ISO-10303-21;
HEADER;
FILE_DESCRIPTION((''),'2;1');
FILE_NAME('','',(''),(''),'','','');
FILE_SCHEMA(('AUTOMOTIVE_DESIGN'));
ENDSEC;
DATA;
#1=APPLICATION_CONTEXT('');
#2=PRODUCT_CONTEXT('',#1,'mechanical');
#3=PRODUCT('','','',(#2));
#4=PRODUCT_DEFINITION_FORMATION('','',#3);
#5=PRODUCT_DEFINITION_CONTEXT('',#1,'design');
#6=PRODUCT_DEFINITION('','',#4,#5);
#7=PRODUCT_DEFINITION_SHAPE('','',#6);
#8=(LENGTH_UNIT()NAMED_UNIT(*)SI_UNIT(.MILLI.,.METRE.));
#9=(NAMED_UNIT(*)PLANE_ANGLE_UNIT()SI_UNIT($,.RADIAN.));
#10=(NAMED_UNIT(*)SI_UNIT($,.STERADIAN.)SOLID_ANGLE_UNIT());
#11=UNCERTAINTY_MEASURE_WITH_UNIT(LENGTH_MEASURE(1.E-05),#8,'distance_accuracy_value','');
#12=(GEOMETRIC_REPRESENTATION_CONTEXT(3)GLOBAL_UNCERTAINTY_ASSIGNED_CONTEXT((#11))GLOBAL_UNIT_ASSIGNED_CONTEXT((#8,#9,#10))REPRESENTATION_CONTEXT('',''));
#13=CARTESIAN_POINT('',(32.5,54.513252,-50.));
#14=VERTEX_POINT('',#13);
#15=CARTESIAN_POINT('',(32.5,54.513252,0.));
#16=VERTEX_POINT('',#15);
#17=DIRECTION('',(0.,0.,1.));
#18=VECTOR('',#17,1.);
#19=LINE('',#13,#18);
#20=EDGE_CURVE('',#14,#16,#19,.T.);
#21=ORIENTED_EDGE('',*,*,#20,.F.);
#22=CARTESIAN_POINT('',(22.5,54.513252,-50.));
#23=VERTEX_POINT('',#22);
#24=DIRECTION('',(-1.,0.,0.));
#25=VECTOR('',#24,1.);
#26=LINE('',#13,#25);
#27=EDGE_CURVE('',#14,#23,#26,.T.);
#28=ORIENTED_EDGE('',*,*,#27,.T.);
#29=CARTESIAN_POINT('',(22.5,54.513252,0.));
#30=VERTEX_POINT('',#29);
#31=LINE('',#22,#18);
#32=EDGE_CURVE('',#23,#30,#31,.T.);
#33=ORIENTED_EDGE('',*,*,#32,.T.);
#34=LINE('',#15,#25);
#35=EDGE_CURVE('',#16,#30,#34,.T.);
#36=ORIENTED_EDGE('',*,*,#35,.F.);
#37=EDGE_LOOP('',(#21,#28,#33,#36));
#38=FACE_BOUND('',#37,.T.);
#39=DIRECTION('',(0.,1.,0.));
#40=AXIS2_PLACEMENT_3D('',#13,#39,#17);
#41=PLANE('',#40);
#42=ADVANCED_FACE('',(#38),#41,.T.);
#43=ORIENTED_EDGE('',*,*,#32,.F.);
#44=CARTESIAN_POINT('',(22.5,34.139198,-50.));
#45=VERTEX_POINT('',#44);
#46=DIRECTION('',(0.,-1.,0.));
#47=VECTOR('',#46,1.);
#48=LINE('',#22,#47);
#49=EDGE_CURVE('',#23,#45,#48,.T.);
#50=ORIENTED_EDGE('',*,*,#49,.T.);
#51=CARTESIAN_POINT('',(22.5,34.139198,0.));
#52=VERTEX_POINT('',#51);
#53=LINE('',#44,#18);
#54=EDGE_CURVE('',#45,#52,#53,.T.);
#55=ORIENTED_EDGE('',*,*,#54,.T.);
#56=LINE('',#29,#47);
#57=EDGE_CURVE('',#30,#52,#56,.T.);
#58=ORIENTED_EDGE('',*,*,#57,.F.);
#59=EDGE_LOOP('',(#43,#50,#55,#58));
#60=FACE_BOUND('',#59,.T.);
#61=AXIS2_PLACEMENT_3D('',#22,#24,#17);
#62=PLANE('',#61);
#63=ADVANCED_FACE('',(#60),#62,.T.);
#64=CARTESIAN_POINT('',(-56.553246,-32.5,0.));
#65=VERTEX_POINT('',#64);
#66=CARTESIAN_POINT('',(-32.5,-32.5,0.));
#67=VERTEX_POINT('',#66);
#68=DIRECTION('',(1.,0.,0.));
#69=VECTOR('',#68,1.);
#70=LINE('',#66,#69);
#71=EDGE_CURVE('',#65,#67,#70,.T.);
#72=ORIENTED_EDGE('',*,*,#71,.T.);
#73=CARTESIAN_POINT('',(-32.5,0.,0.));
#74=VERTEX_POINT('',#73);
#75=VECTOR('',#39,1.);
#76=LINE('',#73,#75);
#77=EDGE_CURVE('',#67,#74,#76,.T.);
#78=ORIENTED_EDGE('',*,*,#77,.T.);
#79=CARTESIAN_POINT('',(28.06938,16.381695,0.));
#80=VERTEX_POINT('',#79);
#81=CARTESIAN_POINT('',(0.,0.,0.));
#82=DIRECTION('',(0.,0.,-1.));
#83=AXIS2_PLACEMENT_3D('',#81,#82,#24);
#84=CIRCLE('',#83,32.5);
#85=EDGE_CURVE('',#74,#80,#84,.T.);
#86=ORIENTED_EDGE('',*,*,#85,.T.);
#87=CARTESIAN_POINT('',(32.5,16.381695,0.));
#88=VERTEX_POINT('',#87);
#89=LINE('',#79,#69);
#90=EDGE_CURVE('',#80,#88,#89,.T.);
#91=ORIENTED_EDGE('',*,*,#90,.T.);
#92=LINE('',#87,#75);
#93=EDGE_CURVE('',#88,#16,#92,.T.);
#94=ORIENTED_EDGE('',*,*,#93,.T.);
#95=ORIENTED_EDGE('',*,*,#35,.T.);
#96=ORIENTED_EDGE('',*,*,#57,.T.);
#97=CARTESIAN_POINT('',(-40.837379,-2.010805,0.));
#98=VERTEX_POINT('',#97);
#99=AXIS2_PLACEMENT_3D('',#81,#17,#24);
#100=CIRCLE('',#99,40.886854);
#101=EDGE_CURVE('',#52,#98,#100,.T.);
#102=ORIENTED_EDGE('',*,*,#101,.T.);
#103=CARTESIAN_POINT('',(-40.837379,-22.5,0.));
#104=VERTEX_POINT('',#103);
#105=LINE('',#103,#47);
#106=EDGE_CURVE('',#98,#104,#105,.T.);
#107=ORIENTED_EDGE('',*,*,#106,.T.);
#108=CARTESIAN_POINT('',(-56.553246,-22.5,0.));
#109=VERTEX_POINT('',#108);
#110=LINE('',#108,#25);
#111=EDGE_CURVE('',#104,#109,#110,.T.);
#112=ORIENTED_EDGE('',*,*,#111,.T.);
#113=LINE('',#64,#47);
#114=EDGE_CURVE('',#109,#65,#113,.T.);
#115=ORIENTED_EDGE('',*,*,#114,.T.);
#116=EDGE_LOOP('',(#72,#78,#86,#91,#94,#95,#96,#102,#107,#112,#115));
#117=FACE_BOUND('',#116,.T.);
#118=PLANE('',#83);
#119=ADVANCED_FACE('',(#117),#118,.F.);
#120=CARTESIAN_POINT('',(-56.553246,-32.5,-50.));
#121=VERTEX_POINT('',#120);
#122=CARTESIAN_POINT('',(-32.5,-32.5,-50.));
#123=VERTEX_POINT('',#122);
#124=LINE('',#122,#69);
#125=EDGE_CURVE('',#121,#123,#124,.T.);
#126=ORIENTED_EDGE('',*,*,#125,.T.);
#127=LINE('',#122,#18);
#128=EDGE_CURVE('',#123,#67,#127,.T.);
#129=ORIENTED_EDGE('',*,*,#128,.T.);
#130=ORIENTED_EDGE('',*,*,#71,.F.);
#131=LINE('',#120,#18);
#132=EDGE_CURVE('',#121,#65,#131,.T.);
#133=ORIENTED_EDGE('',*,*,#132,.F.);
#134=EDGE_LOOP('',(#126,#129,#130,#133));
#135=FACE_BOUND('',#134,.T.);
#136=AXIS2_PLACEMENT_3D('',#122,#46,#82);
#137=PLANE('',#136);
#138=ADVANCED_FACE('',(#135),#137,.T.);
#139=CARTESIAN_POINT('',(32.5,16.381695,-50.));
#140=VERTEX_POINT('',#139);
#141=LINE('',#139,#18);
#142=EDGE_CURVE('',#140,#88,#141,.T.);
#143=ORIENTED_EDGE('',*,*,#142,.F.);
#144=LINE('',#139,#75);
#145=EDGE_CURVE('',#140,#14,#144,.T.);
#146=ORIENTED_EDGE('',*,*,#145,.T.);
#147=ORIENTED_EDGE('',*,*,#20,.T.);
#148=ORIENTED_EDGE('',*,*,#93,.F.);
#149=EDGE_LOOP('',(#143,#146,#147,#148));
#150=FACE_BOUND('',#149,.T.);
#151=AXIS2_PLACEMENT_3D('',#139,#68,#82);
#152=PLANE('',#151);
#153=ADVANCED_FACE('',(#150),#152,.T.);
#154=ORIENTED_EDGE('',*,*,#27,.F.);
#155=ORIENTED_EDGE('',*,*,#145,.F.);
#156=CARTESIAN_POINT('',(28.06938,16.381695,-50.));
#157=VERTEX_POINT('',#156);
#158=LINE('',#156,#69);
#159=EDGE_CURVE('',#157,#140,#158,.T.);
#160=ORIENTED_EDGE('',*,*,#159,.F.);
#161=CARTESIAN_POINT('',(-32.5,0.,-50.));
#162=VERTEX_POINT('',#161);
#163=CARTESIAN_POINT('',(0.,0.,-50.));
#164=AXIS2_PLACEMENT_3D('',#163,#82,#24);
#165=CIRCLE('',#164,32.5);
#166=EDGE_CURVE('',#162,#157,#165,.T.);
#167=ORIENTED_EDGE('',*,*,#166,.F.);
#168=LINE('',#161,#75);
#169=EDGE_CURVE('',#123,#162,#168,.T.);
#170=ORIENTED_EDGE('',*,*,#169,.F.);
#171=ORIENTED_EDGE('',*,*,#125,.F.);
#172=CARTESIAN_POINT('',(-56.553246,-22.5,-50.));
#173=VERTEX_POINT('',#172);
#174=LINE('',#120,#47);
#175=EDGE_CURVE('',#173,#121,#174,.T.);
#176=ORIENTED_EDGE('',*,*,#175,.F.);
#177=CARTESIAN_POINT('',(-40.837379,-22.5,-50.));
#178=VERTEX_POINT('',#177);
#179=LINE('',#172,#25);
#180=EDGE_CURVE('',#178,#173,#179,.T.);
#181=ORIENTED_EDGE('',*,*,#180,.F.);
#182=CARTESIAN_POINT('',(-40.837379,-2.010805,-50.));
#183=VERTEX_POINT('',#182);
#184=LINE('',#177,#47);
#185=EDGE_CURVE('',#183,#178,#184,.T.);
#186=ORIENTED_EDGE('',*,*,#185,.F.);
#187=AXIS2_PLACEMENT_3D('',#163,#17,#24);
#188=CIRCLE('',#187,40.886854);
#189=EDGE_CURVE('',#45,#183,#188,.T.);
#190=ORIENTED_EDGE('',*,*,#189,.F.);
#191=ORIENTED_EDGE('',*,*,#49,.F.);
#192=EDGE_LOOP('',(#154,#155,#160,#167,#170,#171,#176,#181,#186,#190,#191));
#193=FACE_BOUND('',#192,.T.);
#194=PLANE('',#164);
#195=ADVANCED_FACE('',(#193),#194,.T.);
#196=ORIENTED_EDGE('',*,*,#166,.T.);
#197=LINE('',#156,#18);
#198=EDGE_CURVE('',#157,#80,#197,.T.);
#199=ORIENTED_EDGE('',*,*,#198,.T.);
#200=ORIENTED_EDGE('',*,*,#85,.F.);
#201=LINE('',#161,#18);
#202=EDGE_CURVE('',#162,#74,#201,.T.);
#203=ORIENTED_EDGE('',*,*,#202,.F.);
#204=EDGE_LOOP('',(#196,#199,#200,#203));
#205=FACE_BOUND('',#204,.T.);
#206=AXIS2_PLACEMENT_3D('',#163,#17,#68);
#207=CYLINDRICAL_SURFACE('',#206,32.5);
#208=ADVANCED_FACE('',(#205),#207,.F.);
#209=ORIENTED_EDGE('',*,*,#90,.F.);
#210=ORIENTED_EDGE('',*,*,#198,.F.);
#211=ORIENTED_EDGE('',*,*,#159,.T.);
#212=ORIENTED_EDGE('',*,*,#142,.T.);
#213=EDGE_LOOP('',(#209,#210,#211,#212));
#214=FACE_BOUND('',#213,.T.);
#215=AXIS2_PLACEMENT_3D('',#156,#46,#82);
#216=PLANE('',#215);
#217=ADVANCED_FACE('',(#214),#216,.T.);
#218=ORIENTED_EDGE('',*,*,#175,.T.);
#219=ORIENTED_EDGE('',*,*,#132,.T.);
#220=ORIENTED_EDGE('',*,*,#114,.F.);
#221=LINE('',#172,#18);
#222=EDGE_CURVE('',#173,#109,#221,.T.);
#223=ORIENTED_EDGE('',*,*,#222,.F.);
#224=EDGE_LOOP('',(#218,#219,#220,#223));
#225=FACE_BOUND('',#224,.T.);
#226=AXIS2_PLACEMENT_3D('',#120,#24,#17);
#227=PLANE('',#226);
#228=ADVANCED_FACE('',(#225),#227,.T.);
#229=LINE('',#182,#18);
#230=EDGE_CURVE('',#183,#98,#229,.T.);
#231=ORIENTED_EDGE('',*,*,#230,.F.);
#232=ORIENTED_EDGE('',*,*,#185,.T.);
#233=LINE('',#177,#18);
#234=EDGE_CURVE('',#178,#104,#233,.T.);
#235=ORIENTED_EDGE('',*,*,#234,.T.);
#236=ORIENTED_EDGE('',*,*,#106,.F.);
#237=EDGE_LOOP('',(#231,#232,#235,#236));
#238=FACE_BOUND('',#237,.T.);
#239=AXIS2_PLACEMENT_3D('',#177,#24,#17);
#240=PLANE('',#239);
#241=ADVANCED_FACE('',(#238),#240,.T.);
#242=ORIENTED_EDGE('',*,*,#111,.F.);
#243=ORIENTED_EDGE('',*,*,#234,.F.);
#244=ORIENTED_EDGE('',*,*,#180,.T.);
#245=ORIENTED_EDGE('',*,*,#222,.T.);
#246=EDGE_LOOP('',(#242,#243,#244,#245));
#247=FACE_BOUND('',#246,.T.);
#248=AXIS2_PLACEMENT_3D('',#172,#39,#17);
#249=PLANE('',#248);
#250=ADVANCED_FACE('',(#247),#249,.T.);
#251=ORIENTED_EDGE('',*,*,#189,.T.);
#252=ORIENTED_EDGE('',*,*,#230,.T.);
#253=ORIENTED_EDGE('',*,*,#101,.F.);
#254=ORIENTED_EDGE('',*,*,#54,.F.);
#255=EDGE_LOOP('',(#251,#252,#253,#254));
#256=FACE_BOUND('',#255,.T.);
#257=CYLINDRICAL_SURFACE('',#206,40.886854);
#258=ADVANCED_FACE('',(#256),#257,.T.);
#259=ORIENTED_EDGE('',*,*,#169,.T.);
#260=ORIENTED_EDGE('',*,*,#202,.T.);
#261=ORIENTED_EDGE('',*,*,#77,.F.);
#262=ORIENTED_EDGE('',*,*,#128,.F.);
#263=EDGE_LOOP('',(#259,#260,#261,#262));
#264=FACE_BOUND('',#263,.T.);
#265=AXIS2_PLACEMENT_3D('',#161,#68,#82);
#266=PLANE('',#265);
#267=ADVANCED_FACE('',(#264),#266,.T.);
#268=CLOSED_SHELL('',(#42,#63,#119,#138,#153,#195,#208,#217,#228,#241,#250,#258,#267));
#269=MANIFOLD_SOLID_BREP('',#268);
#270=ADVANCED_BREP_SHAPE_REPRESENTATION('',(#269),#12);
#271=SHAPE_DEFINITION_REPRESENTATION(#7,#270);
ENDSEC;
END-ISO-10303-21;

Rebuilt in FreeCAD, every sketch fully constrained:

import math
import FreeCAD as App
import Part
import Sketcher

V = App.Vector

doc = App.newDocument("Part")
params = doc.addObject("Spreadsheet::Sheet", "Params")
for row, (alias, value) in enumerate([
    ("sketch1_radius", "32.5 mm"),
    ("sketch1_width", "10 mm"),
    ("sketch1_height", "32.5 mm"),
    ("pad1_length", "50 mm"),
], start=1):
    params.set(f"A{row}", alias)
    params.set(f"B{row}", "=" + value)
    params.setAlias(f"B{row}", alias)

body = doc.addObject("PartDesign::Body", "Body")

# Sketch on XY plane
sketch1 = doc.addObject("Sketcher::SketchObject", "Sketch")
body.addObject(sketch1)
sketch1.AttachmentSupport = (doc.XY_Plane, [""])
sketch1.MapMode = "FlatFace"
sketch1.addGeometry(Part.LineSegment(V(-32.5, -32.5, 0), V(-32.5, 0, 0)), False)
sketch1.addGeometry(Part.ArcOfCircle(Part.Circle(V(0, 0, 0), V(0, 0, 1), 32.5), math.radians(30), math.radians(180)), False)
sketch1.addGeometry(Part.LineSegment(V(28.1, 16.4, 0), V(32.5, 16.4, 0)), False)
sketch1.addGeometry(Part.LineSegment(V(32.5, 16.4, 0), V(32.5, 54.5, 0)), False)
sketch1.addGeometry(Part.LineSegment(V(32.5, 54.5, 0), V(22.5, 54.5, 0)), False)
sketch1.addGeometry(Part.LineSegment(V(22.5, 54.5, 0), V(22.5, 34.1, 0)), False)
sketch1.addGeometry(Part.ArcOfCircle(Part.Circle(V(0, 0, 0), V(0, 0, 1), 40.9), math.radians(57), math.radians(183)), False)
sketch1.addGeometry(Part.LineSegment(V(-40.8, -2, 0), V(-40.8, -22.5, 0)), False)
sketch1.addGeometry(Part.LineSegment(V(-40.8, -22.5, 0), V(-56.6, -22.5, 0)), False)
sketch1.addGeometry(Part.LineSegment(V(-56.6, -22.5, 0), V(-56.6, -32.5, 0)), False)
sketch1.addGeometry(Part.LineSegment(V(-56.6, -32.5, 0), V(-32.5, -32.5, 0)), False)
sketch1.addConstraint(Sketcher.Constraint("Tangent", 0, 2, 1, 2))
sketch1.addConstraint(Sketcher.Constraint("Coincident", 1, 1, 2, 1))
sketch1.addConstraint(Sketcher.Constraint("Coincident", 2, 2, 3, 1))
sketch1.addConstraint(Sketcher.Constraint("Coincident", 3, 2, 4, 1))
sketch1.addConstraint(Sketcher.Constraint("Coincident", 4, 2, 5, 1))
sketch1.addConstraint(Sketcher.Constraint("Coincident", 5, 2, 6, 1))
sketch1.addConstraint(Sketcher.Constraint("Coincident", 6, 2, 7, 1))
sketch1.addConstraint(Sketcher.Constraint("Coincident", 7, 2, 8, 1))
sketch1.addConstraint(Sketcher.Constraint("Coincident", 8, 2, 9, 1))
sketch1.addConstraint(Sketcher.Constraint("Coincident", 9, 2, 10, 1))
sketch1.addConstraint(Sketcher.Constraint("Coincident", 10, 2, 0, 1))
sketch1.addConstraint(Sketcher.Constraint("Vertical", 0))
sketch1.addConstraint(Sketcher.Constraint("Horizontal", 2))
sketch1.addConstraint(Sketcher.Constraint("Vertical", 3))
sketch1.addConstraint(Sketcher.Constraint("Horizontal", 4))
sketch1.addConstraint(Sketcher.Constraint("Vertical", 5))
sketch1.addConstraint(Sketcher.Constraint("Vertical", 7))
sketch1.addConstraint(Sketcher.Constraint("Horizontal", 8))
sketch1.addConstraint(Sketcher.Constraint("Vertical", 9))
sketch1.addConstraint(Sketcher.Constraint("Horizontal", 10))
sketch1.addConstraint(Sketcher.Constraint("Coincident", 1, 3, -1, 1))
sketch1.addConstraint(Sketcher.Constraint("Coincident", 6, 3, -1, 1))
sketch1.addConstraint(Sketcher.Constraint("Equal", 4, 9))
sketch1.addConstraint(Sketcher.Constraint("Radius", 1, 32.5))
sketch1.addConstraint(Sketcher.Constraint("DistanceX", 4, 2, 4, 1, 10.0))
sketch1.addConstraint(Sketcher.Constraint("DistanceY", 0, 1, 0, 2, 32.5))
sketch1.addConstraint(Sketcher.Constraint("DistanceX", 0, 2, 2, 2, 65.0))
sketch1.addConstraint(Sketcher.Constraint("Radius", 6, 40.886854))
sketch1.addConstraint(Sketcher.Constraint("DistanceX", 2, 1, 2, 2, 4.43062))
sketch1.addConstraint(Sketcher.Constraint("DistanceY", 6, 2, 1, 1, 18.3925))
sketch1.addConstraint(Sketcher.Constraint("DistanceX", 8, 2, 8, 1, 15.715867))
sketch1.addConstraint(Sketcher.Constraint("DistanceY", 3, 1, 3, 2, 38.131558))
sketch1.setExpression("Constraints[23]", "Params.sketch1_radius")
sketch1.setExpression("Constraints[24]", "Params.sketch1_width")
sketch1.setExpression("Constraints[25]", "Params.sketch1_height")
pad1 = doc.addObject("PartDesign::Pad", "Pad")
body.addObject(pad1)
pad1.Profile = sketch1
pad1.setExpression("Length", "Params.pad1_length")
pad1.Reversed = True

doc.recompute()
